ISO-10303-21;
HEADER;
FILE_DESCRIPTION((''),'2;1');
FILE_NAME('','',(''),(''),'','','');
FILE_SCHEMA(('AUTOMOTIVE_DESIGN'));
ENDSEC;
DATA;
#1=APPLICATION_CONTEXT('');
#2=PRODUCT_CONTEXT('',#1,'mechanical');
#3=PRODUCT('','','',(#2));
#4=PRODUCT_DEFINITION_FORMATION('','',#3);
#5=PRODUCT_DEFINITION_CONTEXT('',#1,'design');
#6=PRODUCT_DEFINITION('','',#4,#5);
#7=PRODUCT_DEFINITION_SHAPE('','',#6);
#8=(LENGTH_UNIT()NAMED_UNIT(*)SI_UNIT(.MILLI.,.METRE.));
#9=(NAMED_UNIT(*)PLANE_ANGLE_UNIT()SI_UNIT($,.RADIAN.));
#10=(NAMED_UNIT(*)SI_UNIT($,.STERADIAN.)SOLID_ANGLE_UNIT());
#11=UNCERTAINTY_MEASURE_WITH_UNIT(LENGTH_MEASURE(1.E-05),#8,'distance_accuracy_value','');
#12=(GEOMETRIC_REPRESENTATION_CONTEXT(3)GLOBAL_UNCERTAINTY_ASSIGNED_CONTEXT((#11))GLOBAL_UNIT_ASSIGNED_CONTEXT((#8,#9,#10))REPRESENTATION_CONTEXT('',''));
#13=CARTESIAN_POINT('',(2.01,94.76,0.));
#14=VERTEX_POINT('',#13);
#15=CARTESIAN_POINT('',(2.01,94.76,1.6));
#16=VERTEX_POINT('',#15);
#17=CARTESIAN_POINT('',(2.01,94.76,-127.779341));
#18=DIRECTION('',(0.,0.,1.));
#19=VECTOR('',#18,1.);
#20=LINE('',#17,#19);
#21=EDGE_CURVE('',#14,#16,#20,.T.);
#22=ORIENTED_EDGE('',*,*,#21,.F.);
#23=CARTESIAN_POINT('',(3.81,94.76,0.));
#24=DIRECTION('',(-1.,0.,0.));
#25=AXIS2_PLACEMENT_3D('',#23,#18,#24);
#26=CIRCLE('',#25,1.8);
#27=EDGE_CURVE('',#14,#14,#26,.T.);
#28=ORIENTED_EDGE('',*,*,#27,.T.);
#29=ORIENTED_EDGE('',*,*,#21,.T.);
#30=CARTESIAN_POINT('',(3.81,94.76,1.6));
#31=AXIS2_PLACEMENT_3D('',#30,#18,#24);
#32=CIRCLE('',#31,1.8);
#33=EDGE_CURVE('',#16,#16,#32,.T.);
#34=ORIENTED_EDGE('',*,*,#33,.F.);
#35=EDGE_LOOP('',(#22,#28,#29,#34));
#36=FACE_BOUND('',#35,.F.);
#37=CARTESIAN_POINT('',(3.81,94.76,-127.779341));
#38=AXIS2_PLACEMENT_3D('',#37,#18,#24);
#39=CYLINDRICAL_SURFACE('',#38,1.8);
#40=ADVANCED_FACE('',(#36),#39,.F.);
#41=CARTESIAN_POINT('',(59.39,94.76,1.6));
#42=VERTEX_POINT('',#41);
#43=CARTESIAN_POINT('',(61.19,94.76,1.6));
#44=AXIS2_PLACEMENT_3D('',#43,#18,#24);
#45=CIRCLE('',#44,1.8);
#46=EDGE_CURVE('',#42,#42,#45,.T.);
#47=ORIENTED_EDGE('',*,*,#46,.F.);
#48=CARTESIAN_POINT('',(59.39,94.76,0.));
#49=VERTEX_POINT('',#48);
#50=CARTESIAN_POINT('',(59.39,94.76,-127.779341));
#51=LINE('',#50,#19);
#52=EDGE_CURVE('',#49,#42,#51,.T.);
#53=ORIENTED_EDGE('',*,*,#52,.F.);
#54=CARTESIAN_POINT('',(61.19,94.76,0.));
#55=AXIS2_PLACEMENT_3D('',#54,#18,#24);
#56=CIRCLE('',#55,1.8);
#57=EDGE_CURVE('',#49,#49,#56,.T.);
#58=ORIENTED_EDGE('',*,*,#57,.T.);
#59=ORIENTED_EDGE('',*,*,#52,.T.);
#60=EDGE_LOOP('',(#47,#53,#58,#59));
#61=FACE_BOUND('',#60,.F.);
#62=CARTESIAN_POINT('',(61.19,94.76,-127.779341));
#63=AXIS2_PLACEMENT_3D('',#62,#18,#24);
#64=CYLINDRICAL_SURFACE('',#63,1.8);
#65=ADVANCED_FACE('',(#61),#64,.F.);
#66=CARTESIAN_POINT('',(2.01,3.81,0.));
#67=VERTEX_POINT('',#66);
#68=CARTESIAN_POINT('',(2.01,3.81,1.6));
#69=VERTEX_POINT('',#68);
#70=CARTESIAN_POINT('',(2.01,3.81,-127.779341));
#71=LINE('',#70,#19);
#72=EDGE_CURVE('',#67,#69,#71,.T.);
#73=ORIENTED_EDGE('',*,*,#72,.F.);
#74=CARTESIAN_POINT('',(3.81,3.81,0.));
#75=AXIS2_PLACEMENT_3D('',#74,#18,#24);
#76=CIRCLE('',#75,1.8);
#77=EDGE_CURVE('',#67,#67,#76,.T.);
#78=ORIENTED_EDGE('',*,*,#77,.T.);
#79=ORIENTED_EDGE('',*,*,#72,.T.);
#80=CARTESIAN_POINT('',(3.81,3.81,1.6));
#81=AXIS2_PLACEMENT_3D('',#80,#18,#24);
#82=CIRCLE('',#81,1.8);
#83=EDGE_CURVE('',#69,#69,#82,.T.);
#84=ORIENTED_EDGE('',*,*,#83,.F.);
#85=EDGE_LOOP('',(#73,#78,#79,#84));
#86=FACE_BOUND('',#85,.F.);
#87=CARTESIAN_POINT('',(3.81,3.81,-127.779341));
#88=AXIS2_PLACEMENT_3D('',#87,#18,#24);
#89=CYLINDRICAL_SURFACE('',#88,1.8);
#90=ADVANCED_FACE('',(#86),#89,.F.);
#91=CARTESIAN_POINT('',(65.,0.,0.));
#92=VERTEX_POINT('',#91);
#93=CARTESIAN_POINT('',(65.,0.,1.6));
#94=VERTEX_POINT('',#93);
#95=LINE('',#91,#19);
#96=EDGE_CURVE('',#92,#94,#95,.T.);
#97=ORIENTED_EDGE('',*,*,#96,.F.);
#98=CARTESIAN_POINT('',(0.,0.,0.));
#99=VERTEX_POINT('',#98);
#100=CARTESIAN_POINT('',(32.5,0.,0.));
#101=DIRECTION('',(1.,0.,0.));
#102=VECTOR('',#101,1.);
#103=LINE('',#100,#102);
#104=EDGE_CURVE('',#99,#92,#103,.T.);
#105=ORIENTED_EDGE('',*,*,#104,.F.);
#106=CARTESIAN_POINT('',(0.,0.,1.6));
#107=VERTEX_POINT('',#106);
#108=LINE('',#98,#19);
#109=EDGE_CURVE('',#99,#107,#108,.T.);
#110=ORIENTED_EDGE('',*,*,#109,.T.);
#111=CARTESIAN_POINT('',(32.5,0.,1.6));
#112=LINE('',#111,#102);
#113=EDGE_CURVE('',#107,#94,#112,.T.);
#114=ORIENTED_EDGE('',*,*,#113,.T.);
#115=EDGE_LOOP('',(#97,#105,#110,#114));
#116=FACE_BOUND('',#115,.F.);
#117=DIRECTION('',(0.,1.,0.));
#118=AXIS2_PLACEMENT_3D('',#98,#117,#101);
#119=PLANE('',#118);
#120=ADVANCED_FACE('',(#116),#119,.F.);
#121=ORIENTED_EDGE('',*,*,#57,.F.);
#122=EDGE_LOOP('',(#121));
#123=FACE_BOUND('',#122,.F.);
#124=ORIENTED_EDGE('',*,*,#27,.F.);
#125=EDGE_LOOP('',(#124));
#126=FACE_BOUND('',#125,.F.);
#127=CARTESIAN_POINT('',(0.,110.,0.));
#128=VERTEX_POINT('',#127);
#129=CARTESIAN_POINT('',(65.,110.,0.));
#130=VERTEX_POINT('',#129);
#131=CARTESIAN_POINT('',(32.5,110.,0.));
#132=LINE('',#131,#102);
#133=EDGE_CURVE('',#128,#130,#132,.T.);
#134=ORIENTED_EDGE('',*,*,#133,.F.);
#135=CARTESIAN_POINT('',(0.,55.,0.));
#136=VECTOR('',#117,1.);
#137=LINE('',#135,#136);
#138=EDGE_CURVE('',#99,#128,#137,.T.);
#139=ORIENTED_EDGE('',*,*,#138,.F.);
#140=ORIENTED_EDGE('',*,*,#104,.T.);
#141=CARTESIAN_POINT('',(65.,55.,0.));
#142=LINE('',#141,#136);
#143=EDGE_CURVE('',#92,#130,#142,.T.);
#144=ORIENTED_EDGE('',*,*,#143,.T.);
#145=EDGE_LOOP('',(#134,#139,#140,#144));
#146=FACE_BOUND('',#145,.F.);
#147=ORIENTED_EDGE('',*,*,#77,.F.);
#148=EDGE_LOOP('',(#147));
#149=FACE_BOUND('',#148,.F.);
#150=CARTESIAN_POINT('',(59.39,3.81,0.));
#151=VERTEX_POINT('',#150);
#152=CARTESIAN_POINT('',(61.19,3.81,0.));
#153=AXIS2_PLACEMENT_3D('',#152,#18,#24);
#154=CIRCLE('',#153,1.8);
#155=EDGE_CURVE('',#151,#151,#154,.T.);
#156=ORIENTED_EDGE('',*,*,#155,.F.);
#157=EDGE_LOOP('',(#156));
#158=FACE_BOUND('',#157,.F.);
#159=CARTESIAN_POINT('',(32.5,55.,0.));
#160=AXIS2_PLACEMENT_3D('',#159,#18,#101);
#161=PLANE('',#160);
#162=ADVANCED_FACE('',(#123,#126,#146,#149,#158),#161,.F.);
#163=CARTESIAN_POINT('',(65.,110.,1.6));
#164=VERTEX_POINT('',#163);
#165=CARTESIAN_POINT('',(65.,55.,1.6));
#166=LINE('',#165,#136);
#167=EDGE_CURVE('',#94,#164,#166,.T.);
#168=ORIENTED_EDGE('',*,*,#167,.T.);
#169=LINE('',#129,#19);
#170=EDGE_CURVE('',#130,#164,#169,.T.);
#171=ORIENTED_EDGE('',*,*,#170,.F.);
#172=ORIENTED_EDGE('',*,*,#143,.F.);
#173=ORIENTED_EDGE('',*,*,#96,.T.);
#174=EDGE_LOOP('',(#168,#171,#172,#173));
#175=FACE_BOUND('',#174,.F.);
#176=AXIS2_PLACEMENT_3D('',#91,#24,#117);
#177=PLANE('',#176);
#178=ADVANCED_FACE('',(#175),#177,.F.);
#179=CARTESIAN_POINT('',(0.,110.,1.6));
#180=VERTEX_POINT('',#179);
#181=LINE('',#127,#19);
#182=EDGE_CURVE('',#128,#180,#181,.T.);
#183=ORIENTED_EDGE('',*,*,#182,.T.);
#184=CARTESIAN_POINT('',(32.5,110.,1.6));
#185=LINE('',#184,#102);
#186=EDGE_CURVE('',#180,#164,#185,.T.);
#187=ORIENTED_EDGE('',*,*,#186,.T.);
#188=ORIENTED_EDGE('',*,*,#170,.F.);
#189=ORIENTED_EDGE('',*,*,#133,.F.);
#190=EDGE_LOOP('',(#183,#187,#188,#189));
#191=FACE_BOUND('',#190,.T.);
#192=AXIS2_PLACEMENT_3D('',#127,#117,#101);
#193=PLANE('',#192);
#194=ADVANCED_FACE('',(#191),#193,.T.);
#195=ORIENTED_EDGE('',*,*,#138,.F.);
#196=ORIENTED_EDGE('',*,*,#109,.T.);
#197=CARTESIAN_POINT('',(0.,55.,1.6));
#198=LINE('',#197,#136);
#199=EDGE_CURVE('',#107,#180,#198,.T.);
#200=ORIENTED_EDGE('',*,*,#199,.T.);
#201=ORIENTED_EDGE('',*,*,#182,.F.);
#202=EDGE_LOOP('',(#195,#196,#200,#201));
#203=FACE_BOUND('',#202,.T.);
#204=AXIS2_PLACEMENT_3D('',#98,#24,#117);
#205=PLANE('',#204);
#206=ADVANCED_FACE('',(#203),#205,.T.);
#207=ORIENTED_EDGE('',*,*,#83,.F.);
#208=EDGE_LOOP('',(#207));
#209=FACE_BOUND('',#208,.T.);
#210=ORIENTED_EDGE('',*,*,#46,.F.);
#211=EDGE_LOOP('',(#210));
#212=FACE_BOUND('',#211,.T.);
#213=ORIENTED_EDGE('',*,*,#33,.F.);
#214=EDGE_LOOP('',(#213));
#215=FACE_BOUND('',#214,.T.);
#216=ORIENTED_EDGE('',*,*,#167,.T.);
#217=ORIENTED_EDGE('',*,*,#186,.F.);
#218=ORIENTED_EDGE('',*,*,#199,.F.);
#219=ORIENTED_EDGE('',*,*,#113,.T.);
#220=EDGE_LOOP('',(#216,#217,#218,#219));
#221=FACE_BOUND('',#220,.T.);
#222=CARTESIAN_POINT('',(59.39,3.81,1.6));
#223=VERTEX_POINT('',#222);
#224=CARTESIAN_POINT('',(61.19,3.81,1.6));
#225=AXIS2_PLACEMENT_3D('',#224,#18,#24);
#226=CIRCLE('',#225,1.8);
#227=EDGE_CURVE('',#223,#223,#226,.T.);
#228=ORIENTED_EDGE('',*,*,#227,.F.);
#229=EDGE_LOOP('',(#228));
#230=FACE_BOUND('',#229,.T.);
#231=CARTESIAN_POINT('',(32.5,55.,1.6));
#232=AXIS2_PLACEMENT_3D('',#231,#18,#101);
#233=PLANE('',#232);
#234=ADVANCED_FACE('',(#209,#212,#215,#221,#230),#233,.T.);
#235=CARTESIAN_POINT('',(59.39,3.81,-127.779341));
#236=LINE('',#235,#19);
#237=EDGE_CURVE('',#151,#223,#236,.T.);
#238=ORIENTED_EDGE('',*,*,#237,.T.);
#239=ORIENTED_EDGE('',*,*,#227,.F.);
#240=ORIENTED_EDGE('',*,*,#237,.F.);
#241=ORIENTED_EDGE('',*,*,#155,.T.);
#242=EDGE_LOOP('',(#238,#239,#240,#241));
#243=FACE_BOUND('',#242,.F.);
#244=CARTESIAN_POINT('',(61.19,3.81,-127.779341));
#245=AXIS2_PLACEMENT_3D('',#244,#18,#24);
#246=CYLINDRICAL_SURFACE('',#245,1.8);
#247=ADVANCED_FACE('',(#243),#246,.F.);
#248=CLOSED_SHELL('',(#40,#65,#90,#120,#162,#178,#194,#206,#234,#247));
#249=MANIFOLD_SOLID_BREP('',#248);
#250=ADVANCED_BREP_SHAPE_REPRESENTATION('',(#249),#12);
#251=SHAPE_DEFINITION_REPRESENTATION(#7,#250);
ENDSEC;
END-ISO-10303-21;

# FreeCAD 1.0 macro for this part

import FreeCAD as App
import Part
import Sketcher
from FreeCAD import Vector
Q = App.Units.Quantity

doc = App.newDocument("Part")
body = doc.addObject("PartDesign::Body", "Body")

# Sketch on XY plane
sketch1 = body.newObject("Sketcher::SketchObject", "Sketch")
sketch1.AttachmentSupport = (doc.getObject("XY_Plane"), [""])
sketch1.MapMode = "FlatFace"
sketch1.addGeometry([
    Part.LineSegment(Vector(0, 110, 0), Vector(0, 0, 0)),
    Part.LineSegment(Vector(0, 0, 0), Vector(65, 0, 0)),
    Part.LineSegment(Vector(65, 0, 0), Vector(65, 110, 0)),
    Part.LineSegment(Vector(65, 110, 0), Vector(0, 110, 0)),
], False)
sketch1.addConstraint([
    Sketcher.Constraint("Coincident", 0, 2, 1, 1),
    Sketcher.Constraint("Coincident", 1, 2, 2, 1),
    Sketcher.Constraint("Coincident", 2, 2, 3, 1),
    Sketcher.Constraint("Coincident", 3, 2, 0, 1),
    Sketcher.Constraint("Vertical", 0),
    Sketcher.Constraint("Horizontal", 1),
    Sketcher.Constraint("Vertical", 2),
    Sketcher.Constraint("Horizontal", 3),
    Sketcher.Constraint("Coincident", 0, 2, -1, 1),
    Sketcher.Constraint("DistanceX", 1, 1, 1, 2, Q("65 mm")),
    Sketcher.Constraint("DistanceY", 0, 2, 0, 1, Q("110 mm")),
])
pad1 = body.newObject("PartDesign::Pad", "Pad")
pad1.Profile = sketch1
pad1.Length = 1.6

# Sketch on XY plane
sketch2 = body.newObject("Sketcher::SketchObject", "Sketch001")
sketch2.AttachmentSupport = (doc.getObject("XY_Plane"), [""])
sketch2.MapMode = "FlatFace"
sketch2.addGeometry([
    Part.Circle(Vector(3.8, 94.8, 0), Vector(0, 0, 1), 1.8),
    Part.Circle(Vector(61.2, 94.8, 0), Vector(0, 0, 1), 1.8),
    Part.Circle(Vector(3.8, 3.8, 0), Vector(0, 0, 1), 1.8),
    Part.Circle(Vector(61.2, 3.8, 0), Vector(0, 0, 1), 1.8),
], False)
sketch2.addConstraint([
    Sketcher.Constraint("Equal", 0, 1),
    Sketcher.Constraint("Equal", 1, 2),
    Sketcher.Constraint("Equal", 2, 3),
    Sketcher.Constraint("Horizontal", 0, 3, 1, 3),
    Sketcher.Constraint("Horizontal", 2, 3, 3, 3),
    Sketcher.Constraint("Vertical", 0, 3, 2, 3),
    Sketcher.Constraint("Vertical", 1, 3, 3, 3),
    Sketcher.Constraint("Diameter", 0, Q("3.6 mm")),
    Sketcher.Constraint("DistanceX", -1, 1, 0, 3, Q("3.81 mm")),
    Sketcher.Constraint("DistanceY", -1, 1, 0, 3, Q("94.76 mm")),
    Sketcher.Constraint("DistanceX", -1, 1, 1, 3, Q("61.19 mm")),
    Sketcher.Constraint("DistanceY", -1, 1, 2, 3, Q("3.81 mm")),
])
doc.recompute()
hole = body.newObject("PartDesign::Hole", "Hole")
hole.Profile = sketch2
hole.ThreadType = "None"
hole.Diameter = 3.6
hole.DepthType = "ThroughAll"
hole.Reversed = True

doc.recompute()
